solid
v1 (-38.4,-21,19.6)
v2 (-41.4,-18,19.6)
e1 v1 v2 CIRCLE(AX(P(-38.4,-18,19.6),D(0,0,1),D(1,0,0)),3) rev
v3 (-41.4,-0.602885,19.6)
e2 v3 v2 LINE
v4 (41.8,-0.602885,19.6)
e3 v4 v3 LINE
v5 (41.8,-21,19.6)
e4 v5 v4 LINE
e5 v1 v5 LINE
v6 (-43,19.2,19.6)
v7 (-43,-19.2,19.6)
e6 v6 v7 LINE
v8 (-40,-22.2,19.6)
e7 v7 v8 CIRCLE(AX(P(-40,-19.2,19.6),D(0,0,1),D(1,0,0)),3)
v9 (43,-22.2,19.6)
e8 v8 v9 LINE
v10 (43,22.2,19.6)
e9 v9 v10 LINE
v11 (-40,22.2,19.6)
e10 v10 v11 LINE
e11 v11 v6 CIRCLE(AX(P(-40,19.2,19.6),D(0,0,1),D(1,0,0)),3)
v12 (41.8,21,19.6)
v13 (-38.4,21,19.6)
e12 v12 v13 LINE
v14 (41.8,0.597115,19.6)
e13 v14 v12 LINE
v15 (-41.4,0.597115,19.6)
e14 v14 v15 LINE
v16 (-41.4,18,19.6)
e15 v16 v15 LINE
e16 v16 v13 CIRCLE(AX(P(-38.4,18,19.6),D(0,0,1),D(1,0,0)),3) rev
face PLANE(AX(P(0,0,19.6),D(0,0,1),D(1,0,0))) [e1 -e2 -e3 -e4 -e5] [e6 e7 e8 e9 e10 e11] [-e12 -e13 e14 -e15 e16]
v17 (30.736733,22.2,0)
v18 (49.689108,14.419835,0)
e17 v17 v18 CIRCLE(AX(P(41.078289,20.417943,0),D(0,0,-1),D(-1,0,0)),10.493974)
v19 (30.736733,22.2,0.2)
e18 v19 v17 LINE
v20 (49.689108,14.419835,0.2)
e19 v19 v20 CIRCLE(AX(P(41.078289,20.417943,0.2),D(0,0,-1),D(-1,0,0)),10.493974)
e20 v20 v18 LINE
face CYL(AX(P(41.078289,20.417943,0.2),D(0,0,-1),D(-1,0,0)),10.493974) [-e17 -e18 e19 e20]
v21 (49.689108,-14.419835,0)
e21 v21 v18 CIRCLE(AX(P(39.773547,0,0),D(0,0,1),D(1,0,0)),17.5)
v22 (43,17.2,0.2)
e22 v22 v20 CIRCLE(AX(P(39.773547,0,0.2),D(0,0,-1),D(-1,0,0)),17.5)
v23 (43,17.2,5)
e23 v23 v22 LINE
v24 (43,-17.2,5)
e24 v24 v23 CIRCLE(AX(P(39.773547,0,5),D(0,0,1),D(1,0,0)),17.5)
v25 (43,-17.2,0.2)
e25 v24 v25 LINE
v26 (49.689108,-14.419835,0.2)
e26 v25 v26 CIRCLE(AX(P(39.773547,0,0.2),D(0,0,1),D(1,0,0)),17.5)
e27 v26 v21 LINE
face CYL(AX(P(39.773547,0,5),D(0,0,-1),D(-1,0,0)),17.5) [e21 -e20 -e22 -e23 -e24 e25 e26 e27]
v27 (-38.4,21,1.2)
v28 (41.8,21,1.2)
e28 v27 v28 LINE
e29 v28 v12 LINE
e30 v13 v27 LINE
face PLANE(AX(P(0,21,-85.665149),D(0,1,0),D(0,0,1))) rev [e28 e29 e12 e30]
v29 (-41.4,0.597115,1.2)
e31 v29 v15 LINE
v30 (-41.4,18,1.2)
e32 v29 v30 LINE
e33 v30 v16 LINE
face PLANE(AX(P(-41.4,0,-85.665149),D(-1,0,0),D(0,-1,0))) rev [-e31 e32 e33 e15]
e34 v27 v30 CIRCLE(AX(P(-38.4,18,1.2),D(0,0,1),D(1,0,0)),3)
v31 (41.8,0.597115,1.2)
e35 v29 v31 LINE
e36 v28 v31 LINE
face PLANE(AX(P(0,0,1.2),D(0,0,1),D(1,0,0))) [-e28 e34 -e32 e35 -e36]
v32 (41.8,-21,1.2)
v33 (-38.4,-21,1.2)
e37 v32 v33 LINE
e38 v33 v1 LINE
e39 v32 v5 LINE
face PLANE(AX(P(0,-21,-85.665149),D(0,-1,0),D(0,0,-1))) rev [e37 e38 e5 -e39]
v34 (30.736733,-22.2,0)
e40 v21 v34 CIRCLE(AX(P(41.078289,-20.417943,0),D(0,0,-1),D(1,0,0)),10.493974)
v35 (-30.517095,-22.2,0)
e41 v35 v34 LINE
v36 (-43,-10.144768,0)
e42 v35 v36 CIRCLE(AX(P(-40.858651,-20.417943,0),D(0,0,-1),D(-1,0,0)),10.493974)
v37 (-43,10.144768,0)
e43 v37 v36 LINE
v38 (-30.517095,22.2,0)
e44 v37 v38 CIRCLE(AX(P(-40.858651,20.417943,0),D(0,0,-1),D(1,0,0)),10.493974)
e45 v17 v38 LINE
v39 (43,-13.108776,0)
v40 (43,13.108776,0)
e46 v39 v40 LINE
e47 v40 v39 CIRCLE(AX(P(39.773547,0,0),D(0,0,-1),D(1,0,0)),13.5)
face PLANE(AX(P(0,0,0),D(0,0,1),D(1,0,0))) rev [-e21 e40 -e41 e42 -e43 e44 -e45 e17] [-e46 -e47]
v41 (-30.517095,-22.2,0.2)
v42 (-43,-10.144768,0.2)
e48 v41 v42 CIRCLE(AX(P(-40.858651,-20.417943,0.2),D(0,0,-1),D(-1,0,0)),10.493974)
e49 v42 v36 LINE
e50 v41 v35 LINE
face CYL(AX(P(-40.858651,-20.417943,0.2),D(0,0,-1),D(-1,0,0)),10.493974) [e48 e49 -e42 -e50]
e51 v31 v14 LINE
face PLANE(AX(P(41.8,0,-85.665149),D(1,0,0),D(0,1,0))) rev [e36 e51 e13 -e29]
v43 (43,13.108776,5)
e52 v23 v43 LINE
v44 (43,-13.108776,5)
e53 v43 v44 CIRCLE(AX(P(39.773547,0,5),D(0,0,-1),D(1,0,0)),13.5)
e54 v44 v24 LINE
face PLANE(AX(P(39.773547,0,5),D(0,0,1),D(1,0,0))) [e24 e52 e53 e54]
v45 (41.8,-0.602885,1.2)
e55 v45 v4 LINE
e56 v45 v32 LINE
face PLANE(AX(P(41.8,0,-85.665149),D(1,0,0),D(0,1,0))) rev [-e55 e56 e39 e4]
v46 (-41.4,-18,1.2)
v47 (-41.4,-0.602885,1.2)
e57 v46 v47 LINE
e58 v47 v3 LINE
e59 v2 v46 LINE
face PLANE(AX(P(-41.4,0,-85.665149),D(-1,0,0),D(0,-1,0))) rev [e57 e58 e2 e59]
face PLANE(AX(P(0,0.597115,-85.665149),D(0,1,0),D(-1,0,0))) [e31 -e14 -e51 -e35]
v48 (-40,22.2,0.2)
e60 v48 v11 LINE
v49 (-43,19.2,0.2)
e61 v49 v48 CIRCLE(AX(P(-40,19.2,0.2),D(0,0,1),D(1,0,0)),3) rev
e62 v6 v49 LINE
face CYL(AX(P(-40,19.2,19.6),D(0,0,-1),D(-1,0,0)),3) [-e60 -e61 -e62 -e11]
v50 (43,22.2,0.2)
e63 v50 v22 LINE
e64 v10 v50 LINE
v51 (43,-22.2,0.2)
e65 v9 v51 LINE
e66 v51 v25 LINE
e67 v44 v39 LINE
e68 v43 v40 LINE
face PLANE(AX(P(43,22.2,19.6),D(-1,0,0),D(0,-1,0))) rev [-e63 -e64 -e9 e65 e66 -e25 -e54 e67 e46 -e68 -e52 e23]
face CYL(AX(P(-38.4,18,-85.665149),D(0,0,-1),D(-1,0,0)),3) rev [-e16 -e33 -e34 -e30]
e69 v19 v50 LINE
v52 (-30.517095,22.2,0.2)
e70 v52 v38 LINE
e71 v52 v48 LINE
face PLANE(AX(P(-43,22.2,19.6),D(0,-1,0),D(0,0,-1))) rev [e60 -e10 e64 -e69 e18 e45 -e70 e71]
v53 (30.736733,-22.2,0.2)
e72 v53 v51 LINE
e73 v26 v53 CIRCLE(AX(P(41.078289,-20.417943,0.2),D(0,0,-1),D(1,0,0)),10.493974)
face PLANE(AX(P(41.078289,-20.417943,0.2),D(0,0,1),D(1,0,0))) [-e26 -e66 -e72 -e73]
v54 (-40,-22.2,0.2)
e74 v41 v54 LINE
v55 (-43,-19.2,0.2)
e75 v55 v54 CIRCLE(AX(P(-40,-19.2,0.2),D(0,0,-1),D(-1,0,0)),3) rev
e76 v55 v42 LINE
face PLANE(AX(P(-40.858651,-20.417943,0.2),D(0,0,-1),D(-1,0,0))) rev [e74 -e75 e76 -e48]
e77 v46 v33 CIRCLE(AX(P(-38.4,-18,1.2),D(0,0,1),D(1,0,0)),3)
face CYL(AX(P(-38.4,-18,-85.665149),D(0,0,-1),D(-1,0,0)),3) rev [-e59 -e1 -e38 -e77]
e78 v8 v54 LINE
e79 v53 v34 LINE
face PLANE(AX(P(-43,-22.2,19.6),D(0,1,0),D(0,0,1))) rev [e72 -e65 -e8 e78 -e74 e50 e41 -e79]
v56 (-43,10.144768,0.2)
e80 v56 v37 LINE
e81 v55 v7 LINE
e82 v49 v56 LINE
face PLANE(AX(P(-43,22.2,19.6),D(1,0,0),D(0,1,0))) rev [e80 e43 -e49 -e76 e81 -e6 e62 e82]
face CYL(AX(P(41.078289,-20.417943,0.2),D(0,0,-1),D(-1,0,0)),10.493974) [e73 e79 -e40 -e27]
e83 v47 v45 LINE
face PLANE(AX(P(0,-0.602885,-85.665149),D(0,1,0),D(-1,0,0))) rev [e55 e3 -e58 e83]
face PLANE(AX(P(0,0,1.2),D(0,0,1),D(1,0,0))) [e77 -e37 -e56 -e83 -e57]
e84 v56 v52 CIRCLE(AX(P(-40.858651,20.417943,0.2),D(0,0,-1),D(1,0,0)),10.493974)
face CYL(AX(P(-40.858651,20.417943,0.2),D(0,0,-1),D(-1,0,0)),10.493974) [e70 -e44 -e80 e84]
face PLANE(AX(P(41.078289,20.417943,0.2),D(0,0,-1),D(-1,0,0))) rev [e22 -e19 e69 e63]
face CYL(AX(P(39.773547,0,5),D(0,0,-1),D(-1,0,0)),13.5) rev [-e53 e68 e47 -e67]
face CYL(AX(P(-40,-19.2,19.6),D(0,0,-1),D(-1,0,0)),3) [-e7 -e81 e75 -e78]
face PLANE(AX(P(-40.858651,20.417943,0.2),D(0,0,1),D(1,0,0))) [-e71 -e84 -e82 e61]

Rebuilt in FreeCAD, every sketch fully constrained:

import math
import FreeCAD as App
import Part
import Sketcher
from FreeCAD import Vector


def edges_at(feature, points):
    """Names of the edges that pass closest to the given points."""
    edges = feature.Shape.Edges
    near = lambda p: min(range(len(edges)), key=lambda i: edges[i].distToShape(Part.Vertex(*p))[0])
    return sorted({f"Edge{near(p) + 1}" for p in points})

doc = App.newDocument("Part")
body = doc.addObject("PartDesign::Body", "Body")

sketch1 = body.newObject("Sketcher::SketchObject", "Sketch")
sketch1.AttachmentSupport = (doc.getObject("XY_Plane"), [""])
sketch1.MapMode = "FlatFace"
sketch1.addGeometry([
    Part.LineSegment(Vector(-43, 22, 0), Vector(-43, -22, 0)),
    Part.LineSegment(Vector(-43, -22, 0), Vector(43, -22, 0)),
    Part.LineSegment(Vector(43, -22, 0), Vector(43, 22, 0)),
    Part.LineSegment(Vector(43, 22, 0), Vector(-43, 22, 0)),
], False)
sketch1.addConstraint([
    Sketcher.Constraint("Coincident", 0, 2, 1, 1),
    Sketcher.Constraint("Coincident", 1, 2, 2, 1),
    Sketcher.Constraint("Coincident", 2, 2, 3, 1),
    Sketcher.Constraint("Coincident", 3, 2, 0, 1),
    Sketcher.Constraint("Vertical", 0),
    Sketcher.Constraint("Horizontal", 1),
    Sketcher.Constraint("Vertical", 2),
    Sketcher.Constraint("Horizontal", 3),
    Sketcher.Constraint("Symmetric", 0, 2, 2, 2, -1, 1),
    Sketcher.Constraint("DistanceX", 1, 1, 1, 2, 86.0),
    Sketcher.Constraint("DistanceY", 0, 2, 0, 1, 44.4),
])
pad1 = body.newObject("PartDesign::Pad", "Pad")
pad1.Profile = sketch1
pad1.Length = 19.6

sketch2 = body.newObject("Sketcher::SketchObject", "Sketch001")
sketch2.AttachmentSupport = (doc.getObject("XY_Plane"), [""])
sketch2.MapMode = "FlatFace"
sketch2.addGeometry([
    Part.LineSegment(Vector(43, 17.2, 0), Vector(43, 13.1, 0)),
    Part.ArcOfCircle(Part.Circle(Vector(39.8, 0, 0), Vector(0, 0, 1), 13.5), math.radians(-76), math.radians(76)),
    Part.LineSegment(Vector(43, -13.1, 0), Vector(43, -17.2, 0)),
    Part.ArcOfCircle(Part.Circle(Vector(39.8, 0, 0), Vector(0, 0, 1), 17.5), math.radians(-79), math.radians(79)),
], False)
sketch2.addConstraint([
    Sketcher.Constraint("Coincident", 0, 2, 1, 2),
    Sketcher.Constraint("Coincident", 1, 1, 2, 1),
    Sketcher.Constraint("Coincident", 2, 2, 3, 1),
    Sketcher.Constraint("Coincident", 3, 2, 0, 1),
    Sketcher.Constraint("Vertical", 0),
    Sketcher.Constraint("Vertical", 2),
    Sketcher.Constraint("Coincident", 3, 3, 1, 3),
    Sketcher.Constraint("Symmetric", 0, 2, 1, 1, -1),
    Sketcher.Constraint("Radius", 1, 13.5),
    Sketcher.Constraint("Radius", 3, 17.5),
    Sketcher.Constraint("DistanceX", -1, 1, 0, 2, 43.0),
    Sketcher.Constraint("DistanceY", 2, 2, -1, 1, 17.2),
])
pad2 = body.newObject("PartDesign::Pad", "Pad001")
pad2.Profile = sketch2
pad2.Length = 5

sketch3 = body.newObject("Sketcher::SketchObject", "Sketch002")
sketch3.AttachmentSupport = (doc.getObject("XY_Plane"), [""])
sketch3.MapMode = "FlatFace"
sketch3.AttachmentOffset = App.Placement(Vector(0, 0, 19.6), App.Rotation())
sketch3.addGeometry([
    Part.LineSegment(Vector(-41, 21, 0), Vector(-41, 1, 0)),
    Part.LineSegment(Vector(-41, 1, 0), Vector(42, 1, 0)),
    Part.LineSegment(Vector(42, 1, 0), Vector(42, 21, 0)),
    Part.LineSegment(Vector(42, 21, 0), Vector(-41, 21, 0)),
    Part.LineSegment(Vector(-41, -1, 0), Vector(-41, -21, 0)),
    Part.LineSegment(Vector(-41, -21, 0), Vector(42, -21, 0)),
    Part.LineSegment(Vector(42, -21, 0), Vector(42, -1, 0)),
    Part.LineSegment(Vector(42, -1, 0), Vector(-41, -1, 0)),
], False)
sketch3.addConstraint([
    Sketcher.Constraint("Coincident", 0, 2, 1, 1),
    Sketcher.Constraint("Coincident", 1, 2, 2, 1),
    Sketcher.Constraint("Coincident", 2, 2, 3, 1),
    Sketcher.Constraint("Coincident", 3, 2, 0, 1),
    Sketcher.Constraint("Coincident", 4, 2, 5, 1),
    Sketcher.Constraint("Coincident", 5, 2, 6, 1),
    Sketcher.Constraint("Coincident", 6, 2, 7, 1),
    Sketcher.Constraint("Coincident", 7, 2, 4, 1),
    Sketcher.Constraint("Vertical", 0),
    Sketcher.Constraint("Horizontal", 1),
    Sketcher.Constraint("Vertical", 2),
    Sketcher.Constraint("Horizontal", 3),
    Sketcher.Constraint("Vertical", 4),
    Sketcher.Constraint("Horizontal", 5),
    Sketcher.Constraint("Vertical", 6),
    Sketcher.Constraint("Horizontal", 7),
    Sketcher.Constraint("Symmetric", 3, 2, 4, 2, -1),
    Sketcher.Constraint("Vertical", 2, 2, 5, 2),
    Sketcher.Constraint("DistanceX", 1, 1, 1, 2, 83.2),
    Sketcher.Constraint("DistanceY", -1, 1, 2, 2, 21.0),
    Sketcher.Constraint("DistanceX", 0, 2, -1, 1, 41.4),
    Sketcher.Constraint("DistanceY", 6, 2, 1, 2, 1.2),
    Sketcher.Constraint("DistanceY", 0, 2, 0, 1, 20.402885),
])
pocket1 = body.newObject("PartDesign::Pocket", "Pocket")
pocket1.Profile = sketch3
pocket1.Length = 18.4
doc.recompute()

fillet = body.newObject("PartDesign::Fillet", "Fillet")
fillet.Base = (pocket1, edges_at(pocket1, [
    (-41.4, 21, 10.4),
    (-41.4, -21, 10.4),
    (-43, -22.2, 9.8),
    (-43, 22.2, 9.8),
]))
fillet.Radius = 3

sketch4 = body.newObject("Sketcher::SketchObject", "Sketch003")
sketch4.AttachmentSupport = (doc.getObject("XY_Plane"), [""])
sketch4.MapMode = "FlatFace"
sketch4.addGeometry([
    Part.LineSegment(Vector(50, 14, 0), Vector(31, 22, 0)),
    Part.ArcOfCircle(Part.Circle(Vector(41, 20, 0), Vector(0, 0, 1), 10), math.radians(-35), math.radians(170)),
    Part.LineSegment(Vector(-31, 22, 0), Vector(-43, 10, 0)),
    Part.ArcOfCircle(Part.Circle(Vector(-41, 20, 0), Vector(0, 0, 1), 10), math.radians(10), math.radians(258)),
    Part.LineSegment(Vector(-43, -10, 0), Vector(-31, -22, 0)),
    Part.ArcOfCircle(Part.Circle(Vector(-41, -20, 0), Vector(0, 0, 1), 10), math.radians(102), math.radians(350)),
    Part.LineSegment(Vector(31, -22, 0), Vector(50, -14, 0)),
    Part.ArcOfCircle(Part.Circle(Vector(41, -20, 0), Vector(0, 0, 1), 10), math.radians(-170), math.radians(35)),
], False)
sketch4.addConstraint([
    Sketcher.Constraint("Coincident", 0, 1, 1, 1),
    Sketcher.Constraint("Coincident", 1, 2, 0, 2),
    Sketcher.Constraint("Coincident", 2, 1, 3, 1),
    Sketcher.Constraint("Coincident", 3, 2, 2, 2),
    Sketcher.Constraint("Coincident", 4, 1, 5, 1),
    Sketcher.Constraint("Coincident", 5, 2, 4, 2),
    Sketcher.Constraint("Coincident", 6, 1, 7, 1),
    Sketcher.Constraint("Coincident", 7, 2, 6, 2),
    Sketcher.Constraint("Equal", 1, 3),
    Sketcher.Constraint("Equal", 3, 5),
    Sketcher.Constraint("Equal", 5, 7),
    Sketcher.Constraint("Symmetric", 3, 3, 5, 3, -1),
    Sketcher.Constraint("Symmetric", 1, 3, 7, 3, -1),
    Sketcher.Constraint("Horizontal", 1, 3, 3, 3),
    Sketcher.Constraint("Horizontal", 1, 2, 2, 1),
    Sketcher.Constraint("Horizontal", 5, 2, 6, 1),
    Sketcher.Constraint("Vertical", 3, 2, 4, 1),
    Sketcher.Constraint("Vertical", 2, 1, 5, 2),
    Sketcher.Constraint("Vertical", 0, 1, 7, 2),
    Sketcher.Constraint("DistanceX", 3, 2, -1, 1, 43.0),
    Sketcher.Constraint("DistanceY", -1, 1, 1, 2, 22.2),
    Sketcher.Constraint("Radius", 1, 10.493974),
    Sketcher.Constraint("Distance", 2, 17.353718),
    Sketcher.Constraint("DistanceX", -1, 1, 1, 3, 41.078289),
    Sketcher.Constraint("DistanceX", 3, 3, -1, 1, 40.858651),
    Sketcher.Constraint("DistanceX", 1, 3, 0, 1, 8.610819),
])
pad3 = body.newObject("PartDesign::Pad", "Pad002")
pad3.Profile = sketch4
pad3.Length = 0.2

doc.recompute()
